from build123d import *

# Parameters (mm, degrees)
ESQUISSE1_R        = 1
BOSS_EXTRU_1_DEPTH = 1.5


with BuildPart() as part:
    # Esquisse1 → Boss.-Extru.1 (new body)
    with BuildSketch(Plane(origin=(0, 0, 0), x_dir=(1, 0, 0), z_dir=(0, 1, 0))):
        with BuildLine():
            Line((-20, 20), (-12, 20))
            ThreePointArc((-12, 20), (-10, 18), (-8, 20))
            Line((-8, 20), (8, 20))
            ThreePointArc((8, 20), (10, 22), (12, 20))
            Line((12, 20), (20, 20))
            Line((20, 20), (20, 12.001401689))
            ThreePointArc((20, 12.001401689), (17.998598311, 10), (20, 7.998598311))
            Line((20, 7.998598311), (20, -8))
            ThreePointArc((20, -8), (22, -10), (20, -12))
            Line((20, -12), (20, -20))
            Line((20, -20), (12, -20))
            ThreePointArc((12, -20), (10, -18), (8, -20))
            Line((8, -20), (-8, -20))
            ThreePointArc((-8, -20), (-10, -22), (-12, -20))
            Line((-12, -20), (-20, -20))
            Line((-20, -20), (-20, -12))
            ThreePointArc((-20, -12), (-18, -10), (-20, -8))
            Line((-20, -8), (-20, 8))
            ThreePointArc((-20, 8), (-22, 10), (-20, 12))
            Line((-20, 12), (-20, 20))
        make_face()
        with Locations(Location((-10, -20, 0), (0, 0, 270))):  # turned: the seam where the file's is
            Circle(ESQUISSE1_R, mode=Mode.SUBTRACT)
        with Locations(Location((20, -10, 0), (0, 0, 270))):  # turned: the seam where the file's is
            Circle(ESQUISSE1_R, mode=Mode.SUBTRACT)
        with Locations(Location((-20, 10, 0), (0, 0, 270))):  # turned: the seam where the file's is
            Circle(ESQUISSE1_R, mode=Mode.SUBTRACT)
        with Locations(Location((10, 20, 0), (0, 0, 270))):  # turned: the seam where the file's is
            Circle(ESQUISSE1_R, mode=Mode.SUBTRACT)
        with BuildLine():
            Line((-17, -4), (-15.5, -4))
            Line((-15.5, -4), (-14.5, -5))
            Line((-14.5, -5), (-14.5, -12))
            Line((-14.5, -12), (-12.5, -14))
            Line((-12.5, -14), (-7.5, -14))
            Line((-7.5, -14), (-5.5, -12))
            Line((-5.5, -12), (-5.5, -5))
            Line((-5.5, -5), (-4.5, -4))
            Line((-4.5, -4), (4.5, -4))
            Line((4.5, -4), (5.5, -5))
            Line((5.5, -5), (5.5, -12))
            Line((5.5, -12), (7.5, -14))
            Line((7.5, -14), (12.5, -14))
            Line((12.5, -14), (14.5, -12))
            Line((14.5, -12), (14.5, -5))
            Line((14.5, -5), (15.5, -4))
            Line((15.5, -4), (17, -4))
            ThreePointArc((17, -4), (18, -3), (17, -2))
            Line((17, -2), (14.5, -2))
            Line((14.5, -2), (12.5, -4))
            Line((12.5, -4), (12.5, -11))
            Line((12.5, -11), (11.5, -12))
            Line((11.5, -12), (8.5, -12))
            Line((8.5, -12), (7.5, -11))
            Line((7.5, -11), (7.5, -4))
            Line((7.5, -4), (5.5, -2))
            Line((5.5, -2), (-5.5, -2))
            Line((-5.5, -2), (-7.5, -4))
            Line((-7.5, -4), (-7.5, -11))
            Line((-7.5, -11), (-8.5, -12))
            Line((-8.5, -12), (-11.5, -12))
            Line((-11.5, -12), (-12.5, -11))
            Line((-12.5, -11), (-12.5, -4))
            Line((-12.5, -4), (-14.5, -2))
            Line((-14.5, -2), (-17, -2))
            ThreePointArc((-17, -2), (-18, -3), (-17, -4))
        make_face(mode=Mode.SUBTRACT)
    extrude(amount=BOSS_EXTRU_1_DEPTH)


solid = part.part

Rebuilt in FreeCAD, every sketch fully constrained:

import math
import FreeCAD as App
import Part
import Sketcher

doc = App.newDocument("Part")
body = doc.addObject("PartDesign::Body", "Body")

# Sketch on XZ plane
sketch1 = body.newObject("Sketcher::SketchObject", "Sketch")
sketch1.AttachmentSupport = (doc.getObject("XZ_Plane"), [""])
sketch1.MapMode = "FlatFace"
sketch1.addGeometry([
    Part.LineSegment(App.Vector(-12, -20, 0), App.Vector(-20, -20, 0)),  # 0
    Part.LineSegment(App.Vector(-20, -20, 0), App.Vector(-20, -12, 0)),  # 1
    Part.ArcOfCircle(Part.Circle(App.Vector(-20, -10, 0), App.Vector(0, 0, 1), 2), math.radians(90), math.radians(270)),  # 2
    Part.LineSegment(App.Vector(-20, -8, 0), App.Vector(-20, 8, 0)),  # 3
    Part.ArcOfCircle(Part.Circle(App.Vector(-20, 10, 0), App.Vector(0, 0, 1), 2), math.radians(-90), math.radians(90)),  # 4
    Part.LineSegment(App.Vector(-20, 12, 0), App.Vector(-20, 20, 0)),  # 5
    Part.LineSegment(App.Vector(-20, 20, 0), App.Vector(-12, 20, 0)),  # 6
    Part.ArcOfCircle(Part.Circle(App.Vector(-10, 20, 0), App.Vector(0, 0, 1), 2), math.radians(0), math.radians(180)),  # 7
    Part.LineSegment(App.Vector(-8, 20, 0), App.Vector(8, 20, 0)),  # 8
    Part.ArcOfCircle(Part.Circle(App.Vector(10, 20, 0), App.Vector(0, 0, 1), 2), math.radians(180), math.radians(360)),  # 9
    Part.LineSegment(App.Vector(12, 20, 0), App.Vector(20, 20, 0)),  # 10
    Part.LineSegment(App.Vector(20, 20, 0), App.Vector(20, 12, 0)),  # 11
    Part.ArcOfCircle(Part.Circle(App.Vector(20, 10, 0), App.Vector(0, 0, 1), 2), math.radians(-90), math.radians(90)),  # 12
    Part.LineSegment(App.Vector(20, 8, 0), App.Vector(20, -7.998598, 0)),  # 13
    Part.ArcOfCircle(Part.Circle(App.Vector(20, -10, 0), App.Vector(0, 0, 1), 2.001402), math.radians(90), math.radians(270)),  # 14
    Part.LineSegment(App.Vector(20, -12.001402, 0), App.Vector(20, -20, 0)),  # 15
    Part.LineSegment(App.Vector(20, -20, 0), App.Vector(12, -20, 0)),  # 16
    Part.ArcOfCircle(Part.Circle(App.Vector(10, -20, 0), App.Vector(0, 0, 1), 2), math.radians(180), math.radians(360)),  # 17
    Part.LineSegment(App.Vector(8, -20, 0), App.Vector(-8, -20, 0)),  # 18
    Part.ArcOfCircle(Part.Circle(App.Vector(-10, -20, 0), App.Vector(0, 0, 1), 2), math.radians(0), math.radians(180)),  # 19
    Part.Circle(App.Vector(20, 10, 0), App.Vector(0, 0, 1), 1),  # 20
    Part.Circle(App.Vector(-10, 20, 0), App.Vector(0, 0, 1), 1),  # 21
    Part.ArcOfCircle(Part.Circle(App.Vector(-17, 3, 0), App.Vector(0, 0, 1), 1), math.radians(90), math.radians(270)),  # 22
    Part.LineSegment(App.Vector(-17, 2, 0), App.Vector(-14.5, 2, 0)),  # 23
    Part.LineSegment(App.Vector(-14.5, 2, 0), App.Vector(-12.5, 4, 0)),  # 24
    Part.LineSegment(App.Vector(-12.5, 4, 0), App.Vector(-12.5, 11, 0)),  # 25
    Part.LineSegment(App.Vector(-12.5, 11, 0), App.Vector(-11.5, 12, 0)),  # 26
    Part.LineSegment(App.Vector(-11.5, 12, 0), App.Vector(-8.5, 12, 0)),  # 27
    Part.LineSegment(App.Vector(-8.5, 12, 0), App.Vector(-7.5, 11, 0)),  # 28
    Part.LineSegment(App.Vector(-7.5, 11, 0), App.Vector(-7.5, 4, 0)),  # 29
    Part.LineSegment(App.Vector(-7.5, 4, 0), App.Vector(-5.5, 2, 0)),  # 30
    Part.LineSegment(App.Vector(-5.5, 2, 0), App.Vector(5.5, 2, 0)),  # 31
    Part.LineSegment(App.Vector(5.5, 2, 0), App.Vector(7.5, 4, 0)),  # 32
    Part.LineSegment(App.Vector(7.5, 4, 0), App.Vector(7.5, 11, 0)),  # 33
    Part.LineSegment(App.Vector(7.5, 11, 0), App.Vector(8.5, 12, 0)),  # 34
    Part.LineSegment(App.Vector(8.5, 12, 0), App.Vector(11.5, 12, 0)),  # 35
    Part.LineSegment(App.Vector(11.5, 12, 0), App.Vector(12.5, 11, 0)),  # 36
    Part.LineSegment(App.Vector(12.5, 11, 0), App.Vector(12.5, 4, 0)),  # 37
    Part.LineSegment(App.Vector(12.5, 4, 0), App.Vector(14.5, 2, 0)),  # 38
    Part.LineSegment(App.Vector(14.5, 2, 0), App.Vector(17, 2, 0)),  # 39
    Part.ArcOfCircle(Part.Circle(App.Vector(17, 3, 0), App.Vector(0, 0, 1), 1), math.radians(-90), math.radians(90)),  # 40
    Part.LineSegment(App.Vector(17, 4, 0), App.Vector(15.5, 4, 0)),  # 41
    Part.LineSegment(App.Vector(15.5, 4, 0), App.Vector(14.5, 5, 0)),  # 42
    Part.LineSegment(App.Vector(14.5, 5, 0), App.Vector(14.5, 12, 0)),  # 43
    Part.LineSegment(App.Vector(14.5, 12, 0), App.Vector(12.5, 14, 0)),  # 44
    Part.LineSegment(App.Vector(12.5, 14, 0), App.Vector(7.5, 14, 0)),  # 45
    Part.LineSegment(App.Vector(7.5, 14, 0), App.Vector(5.5, 12, 0)),  # 46
    Part.LineSegment(App.Vector(5.5, 12, 0), App.Vector(5.5, 5, 0)),  # 47
    Part.LineSegment(App.Vector(5.5, 5, 0), App.Vector(4.5, 4, 0)),  # 48
    Part.LineSegment(App.Vector(4.5, 4, 0), App.Vector(-4.5, 4, 0)),  # 49
    Part.LineSegment(App.Vector(-4.5, 4, 0), App.Vector(-5.5, 5, 0)),  # 50
    Part.LineSegment(App.Vector(-5.5, 5, 0), App.Vector(-5.5, 12, 0)),  # 51
    Part.LineSegment(App.Vector(-5.5, 12, 0), App.Vector(-7.5, 14, 0)),  # 52
    Part.LineSegment(App.Vector(-7.5, 14, 0), App.Vector(-12.5, 14, 0)),  # 53
    Part.LineSegment(App.Vector(-12.5, 14, 0), App.Vector(-14.5, 12, 0)),  # 54
    Part.LineSegment(App.Vector(-14.5, 12, 0), App.Vector(-14.5, 5, 0)),  # 55
    Part.LineSegment(App.Vector(-14.5, 5, 0), App.Vector(-15.5, 4, 0)),  # 56
    Part.LineSegment(App.Vector(-15.5, 4, 0), App.Vector(-17, 4, 0)),  # 57
    Part.Circle(App.Vector(10, -20, 0), App.Vector(0, 0, 1), 1),  # 58
    Part.Circle(App.Vector(-20, -10, 0), App.Vector(0, 0, 1), 1),  # 59
], False)
sketch1.addConstraint([
    Sketcher.Constraint("Coincident", 0, 2, 1, 1),
    Sketcher.Constraint("Coincident", 1, 2, 2, 2),
    Sketcher.Constraint("Coincident", 2, 1, 3, 1),
    Sketcher.Constraint("Coincident", 3, 2, 4, 1),
    Sketcher.Constraint("Coincident", 4, 2, 5, 1),
    Sketcher.Constraint("Coincident", 5, 2, 6, 1),
    Sketcher.Constraint("Coincident", 6, 2, 7, 2),
    Sketcher.Constraint("Coincident", 7, 1, 8, 1),
    Sketcher.Constraint("Coincident", 8, 2, 9, 1),
    Sketcher.Constraint("Coincident", 9, 2, 10, 1),
    Sketcher.Constraint("Coincident", 10, 2, 11, 1),
    Sketcher.Constraint("Coincident", 11, 2, 12, 2),
    Sketcher.Constraint("Coincident", 12, 1, 13, 1),
    Sketcher.Constraint("Coincident", 13, 2, 14, 1),
    Sketcher.Constraint("Coincident", 14, 2, 15, 1),
    Sketcher.Constraint("Coincident", 15, 2, 16, 1),
    Sketcher.Constraint("Coincident", 16, 2, 17, 2),
    Sketcher.Constraint("Coincident", 17, 1, 18, 1),
    Sketcher.Constraint("Coincident", 18, 2, 19, 1),
    Sketcher.Constraint("Coincident", 19, 2, 0, 1),
    Sketcher.Constraint("Tangent", 22, 2, 23, 1),
    Sketcher.Constraint("Coincident", 23, 2, 24, 1),
    Sketcher.Constraint("Coincident", 24, 2, 25, 1),
    Sketcher.Constraint("Coincident", 25, 2, 26, 1),
    Sketcher.Constraint("Coincident", 26, 2, 27, 1),
    Sketcher.Constraint("Coincident", 27, 2, 28, 1),
    Sketcher.Constraint("Coincident", 28, 2, 29, 1),
    Sketcher.Constraint("Coincident", 29, 2, 30, 1),
    Sketcher.Constraint("Coincident", 30, 2, 31, 1),
    Sketcher.Constraint("Coincident", 31, 2, 32, 1),
    Sketcher.Constraint("Coincident", 32, 2, 33, 1),
    Sketcher.Constraint("Coincident", 33, 2, 34, 1),
    Sketcher.Constraint("Coincident", 34, 2, 35, 1),
    Sketcher.Constraint("Coincident", 35, 2, 36, 1),
    Sketcher.Constraint("Coincident", 36, 2, 37, 1),
    Sketcher.Constraint("Coincident", 37, 2, 38, 1),
    Sketcher.Constraint("Coincident", 38, 2, 39, 1),
    Sketcher.Constraint("Tangent", 39, 2, 40, 1),
    Sketcher.Constraint("Tangent", 40, 2, 41, 1),
    Sketcher.Constraint("Coincident", 41, 2, 42, 1),
    Sketcher.Constraint("Coincident", 42, 2, 43, 1),
    Sketcher.Constraint("Coincident", 43, 2, 44, 1),
    Sketcher.Constraint("Coincident", 44, 2, 45, 1),
    Sketcher.Constraint("Coincident", 45, 2, 46, 1),
    Sketcher.Constraint("Coincident", 46, 2, 47, 1),
    Sketcher.Constraint("Coincident", 47, 2, 48, 1),
    Sketcher.Constraint("Coincident", 48, 2, 49, 1),
    Sketcher.Constraint("Coincident", 49, 2, 50, 1),
    Sketcher.Constraint("Coincident", 50, 2, 51, 1),
    Sketcher.Constraint("Coincident", 51, 2, 52, 1),
    Sketcher.Constraint("Coincident", 52, 2, 53, 1),
    Sketcher.Constraint("Coincident", 53, 2, 54, 1),
    Sketcher.Constraint("Coincident", 54, 2, 55, 1),
    Sketcher.Constraint("Coincident", 55, 2, 56, 1),
    Sketcher.Constraint("Coincident", 56, 2, 57, 1),
    Sketcher.Constraint("Tangent", 57, 2, 22, 1),
    Sketcher.Constraint("Horizontal", 0),
    Sketcher.Constraint("Vertical", 1),
    Sketcher.Constraint("Vertical", 3),
    Sketcher.Constraint("Vertical", 5),
    Sketcher.Constraint("Horizontal", 6),
    Sketcher.Constraint("Horizontal", 8),
    Sketcher.Constraint("Horizontal", 10),
    Sketcher.Constraint("Vertical", 11),
    Sketcher.Constraint("Vertical", 13),
    Sketcher.Constraint("Vertical", 15),
    Sketcher.Constraint("Horizontal", 16),
    Sketcher.Constraint("Horizontal", 18),
    Sketcher.Constraint("Horizontal", 23),
    Sketcher.Constraint("Vertical", 25),
    Sketcher.Constraint("Horizontal", 27),
    Sketcher.Constraint("Vertical", 29),
    Sketcher.Constraint("Horizontal", 31),
    Sketcher.Constraint("Vertical", 33),
    Sketcher.Constraint("Horizontal", 35),
    Sketcher.Constraint("Vertical", 37),
    Sketcher.Constraint("Horizontal", 39),
    Sketcher.Constraint("Horizontal", 41),
    Sketcher.Constraint("Vertical", 43),
    Sketcher.Constraint("Horizontal", 45),
    Sketcher.Constraint("Vertical", 47),
    Sketcher.Constraint("Horizontal", 49),
    Sketcher.Constraint("Vertical", 51),
    Sketcher.Constraint("Horizontal", 53),
    Sketcher.Constraint("Vertical", 55),
    Sketcher.Constraint("Horizontal", 57),
    Sketcher.Constraint("Coincident", 20, 3, 12, 3),
    Sketcher.Constraint("Coincident", 21, 3, 7, 3),
    Sketcher.Constraint("Coincident", 58, 3, 17, 3),
    Sketcher.Constraint("Coincident", 59, 3, 2, 3),
    Sketcher.Constraint("Equal", 2, 4),
    Sketcher.Constraint("Equal", 4, 7),
    Sketcher.Constraint("Equal", 7, 9),
    Sketcher.Constraint("Equal", 9, 12),
    Sketcher.Constraint("Equal", 12, 17),
    Sketcher.Constraint("Equal", 17, 19),
    Sketcher.Constraint("Equal", 20, 21),
    Sketcher.Constraint("Equal", 21, 22),
    Sketcher.Constraint("Equal", 22, 40),
    Sketcher.Constraint("Equal", 40, 58),
    Sketcher.Constraint("Equal", 58, 59),
    Sketcher.Constraint("Symmetric", 2, 3, 12, 3, -1, 1),
    Sketcher.Constraint("Symmetric", 4, 3, 14, 3, -1, 1),
    Sketcher.Constraint("Symmetric", 7, 3, 17, 3, -1, 1),
    Sketcher.Constraint("Symmetric", 9, 3, 19, 3, -1, 1),
    Sketcher.Constraint("Symmetric", 0, 2, 10, 2, -1, 1),
    Sketcher.Constraint("Symmetric", 5, 2, 15, 2, -1, 1),
    Sketcher.Constraint("Symmetric", 7, 3, 9, 3, -2),
    Sketcher.Constraint("Symmetric", 4, 3, 12, 3, -2),
    Sketcher.Constraint("Symmetric", 22, 3, 40, 3, -2),
    Sketcher.Constraint("Symmetric", 5, 2, 10, 2, -2),
    Sketcher.Constraint("Symmetric", 29, 2, 32, 2, -2),
    Sketcher.Constraint("Symmetric", 27, 2, 34, 2, -2),
    Sketcher.Constraint("Symmetric", 25, 2, 36, 2, -2),
    Sketcher.Constraint("Symmetric", 47, 2, 50, 2, -2),
    Sketcher.Constraint("Symmetric", 45, 2, 52, 2, -2),
    Sketcher.Constraint("Symmetric", 43, 2, 54, 2, -2),
    Sketcher.Constraint("Parallel", 24, 26),
    Sketcher.Constraint("Perpendicular", 26, 28),
    Sketcher.Constraint("Parallel", 28, 30),
    Sketcher.Constraint("Perpendicular", 30, 32),
    Sketcher.Constraint("Parallel", 32, 34),
    Sketcher.Constraint("Perpendicular", 34, 36),
    Sketcher.Constraint("Parallel", 36, 38),
    Sketcher.Constraint("Parallel", 38, 42),
    Sketcher.Constraint("Parallel", 42, 44),
    Sketcher.Constraint("Perpendicular", 44, 46),
    Sketcher.Constraint("Parallel", 46, 48),
    Sketcher.Constraint("Perpendicular", 48, 50),
    Sketcher.Constraint("Parallel", 50, 52),
    Sketcher.Constraint("Perpendicular", 52, 54),
    Sketcher.Constraint("Parallel", 54, 56),
    Sketcher.Constraint("Horizontal", 58, 3, 0, 2),
    Sketcher.Constraint("Horizontal", 6, 2, 7, 1),
    Sketcher.Constraint("Horizontal", 16, 2, 17, 1),
    Sketcher.Constraint("Horizontal", 11, 2, 26, 2),
    Sketcher.Constraint("Horizontal", 25, 2, 28, 2),
    Sketcher.Constraint("Horizontal", 24, 2, 29, 2),
    Sketcher.Constraint("Horizontal", 23, 2, 30, 2),
    Sketcher.Constraint("Horizontal", 28, 2, 33, 2),
    Sketcher.Constraint("Horizontal", 32, 2, 37, 2),
    Sketcher.Constraint("Horizontal", 37, 2, 40, 2),
    Sketcher.Constraint("Horizontal", 35, 2, 43, 2),
    Sketcher.Constraint("Horizontal", 43, 2, 46, 2),
    Sketcher.Constraint("Horizontal", 42, 2, 47, 2),
    Sketcher.Constraint("Horizontal", 41, 2, 48, 2),
    Sketcher.Constraint("Horizontal", 50, 2, 55, 2),
    Sketcher.Constraint("Vertical", 59, 3, 0, 2),
    Sketcher.Constraint("Vertical", 1, 2, 2, 1),
    Sketcher.Constraint("Vertical", 11, 2, 12, 1),
    Sketcher.Constraint("Vertical", 38, 2, 42, 2),
    Sketcher.Constraint("Vertical", 37, 2, 44, 2),
    Sketcher.Constraint("Vertical", 33, 2, 45, 2),
    Sketcher.Constraint("Equal", 16, 1),
    Sketcher.Constraint("Equal", 18, 3),
    Sketcher.Constraint("Equal", 37, 43),
    Sketcher.Constraint("Diameter", 20, 2.0),
    Sketcher.Constraint("Radius", 2, 2.0),
    Sketcher.Constraint("DistanceX", 0, 2, 0, 1, 8.0),
    Sketcher.Constraint("DistanceX", 8, 1, 8, 2, 16.0),
    Sketcher.Constraint("DistanceX", 27, 1, 27, 2, 3.0),
    Sketcher.Constraint("DistanceX", 31, 1, 31, 2, 11.0),
    Sketcher.Constraint("DistanceX", 45, 2, 45, 1, 5.0),
    Sketcher.Constraint("DistanceY", 25, 1, 25, 2, 7.0),
    Sketcher.Constraint("DistanceX", 23, 1, 23, 2, 2.5),
    Sketcher.Constraint("Radius", 14, 2.001402),
])
pad1 = body.newObject("PartDesign::Pad", "Pad")
pad1.Profile = sketch1
pad1.Length = 1.5
pad1.Reversed = True

doc.recompute()
